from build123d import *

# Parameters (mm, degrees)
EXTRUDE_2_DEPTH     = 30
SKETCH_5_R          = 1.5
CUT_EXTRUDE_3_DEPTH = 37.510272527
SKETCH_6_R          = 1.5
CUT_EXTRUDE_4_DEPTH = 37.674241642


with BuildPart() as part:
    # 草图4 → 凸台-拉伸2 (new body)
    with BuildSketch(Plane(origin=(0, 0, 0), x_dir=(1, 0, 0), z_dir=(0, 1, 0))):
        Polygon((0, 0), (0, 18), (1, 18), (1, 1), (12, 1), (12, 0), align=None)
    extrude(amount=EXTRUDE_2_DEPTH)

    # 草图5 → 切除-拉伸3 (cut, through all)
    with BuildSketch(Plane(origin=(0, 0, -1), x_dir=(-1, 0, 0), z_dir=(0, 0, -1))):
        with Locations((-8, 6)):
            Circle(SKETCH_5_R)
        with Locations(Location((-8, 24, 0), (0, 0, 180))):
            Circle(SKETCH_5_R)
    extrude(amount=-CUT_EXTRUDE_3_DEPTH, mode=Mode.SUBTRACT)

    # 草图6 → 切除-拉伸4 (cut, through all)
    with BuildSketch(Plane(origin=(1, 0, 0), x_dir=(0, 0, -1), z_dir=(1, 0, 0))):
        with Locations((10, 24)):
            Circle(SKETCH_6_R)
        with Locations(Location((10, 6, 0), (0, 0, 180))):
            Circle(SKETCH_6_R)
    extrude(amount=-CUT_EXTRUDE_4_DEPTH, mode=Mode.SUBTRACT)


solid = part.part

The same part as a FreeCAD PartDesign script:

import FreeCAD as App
import Part
import Sketcher
from FreeCAD import Vector
Q = App.Units.Quantity


def add_polygon(sketch, points):
    """Adds a closed chain of lines whose ends are joined by coincident constraints."""
    first, n = sketch.GeometryCount, len(points)
    for a, b in zip(points, points[1:] + points[:1]):
        sketch.addGeometry(Part.LineSegment(App.Vector(*a, 0), App.Vector(*b, 0)), False)
    for i in range(n):
        sketch.addConstraint(Sketcher.Constraint("Coincident", first + i, 2, first + (i + 1) % n, 1))

doc = App.newDocument("Part")
body = doc.addObject("PartDesign::Body", "Body")

# Sketch on XZ plane
sketch1 = doc.addObject("Sketcher::SketchObject", "Sketch")
body.addObject(sketch1)
sketch1.AttachmentSupport = (doc.XZ_Plane, [""])
sketch1.MapMode = "FlatFace"
add_polygon(sketch1, [(0, -18), (0, 0), (12, 0), (12, -1), (1, -1), (1, -18)])  # lines 0-5
sketch1.addConstraint([
    Sketcher.Constraint("Vertical", 0),
    Sketcher.Constraint("Horizontal", 1),
    Sketcher.Constraint("Vertical", 2),
    Sketcher.Constraint("Horizontal", 3),
    Sketcher.Constraint("Vertical", 4),
    Sketcher.Constraint("Horizontal", 5),
    Sketcher.Constraint("Coincident", 0, 2, -1, 1),
    Sketcher.Constraint("Equal", 5, 2),
    Sketcher.Constraint("DistanceX", 1, 1, 1, 2, Q("12 mm")),
    Sketcher.Constraint("DistanceX", 3, 2, 3, 1, Q("11 mm")),
    Sketcher.Constraint("DistanceY", 0, 1, 0, 2, Q("18 mm")),
])
pad1 = doc.addObject("PartDesign::Pad", "Pad")
body.addObject(pad1)
pad1.Profile = sketch1
pad1.Length = 30
pad1.Reversed = True

# Sketch on XY plane
sketch2 = doc.addObject("Sketcher::SketchObject", "Sketch001")
body.addObject(sketch2)
sketch2.AttachmentSupport = (doc.XY_Plane, [""])
sketch2.MapMode = "FlatFace"
sketch2.AttachmentOffset = App.Placement(Vector(0, 0, -1), App.Rotation())
sketch2.addGeometry([
    Part.Circle(Vector(8, 6, 0), Vector(0, 0, 1), 1.5),
    Part.Circle(Vector(8, 24, 0), Vector(0, 0, 1), 1.5),
], False)
sketch2.addConstraint([
    Sketcher.Constraint("Equal", 0, 1),
    Sketcher.Constraint("Vertical", 0, 3, 1, 3),
    Sketcher.Constraint("Diameter", 0, Q("3 mm")),
    Sketcher.Constraint("DistanceX", -1, 1, 0, 3, Q("8 mm")),
    Sketcher.Constraint("DistanceY", -1, 1, 0, 3, Q("6 mm")),
    Sketcher.Constraint("DistanceY", -1, 1, 1, 3, Q("24 mm")),
])
pocket1 = doc.addObject("PartDesign::Pocket", "Pocket")
body.addObject(pocket1)
pocket1.Profile = sketch2
pocket1.Type = "ThroughAll"
pocket1.Reversed = True

# Sketch on YZ plane
sketch3 = doc.addObject("Sketcher::SketchObject", "Sketch002")
body.addObject(sketch3)
sketch3.AttachmentSupport = (doc.YZ_Plane, [""])
sketch3.MapMode = "FlatFace"
sketch3.AttachmentOffset = App.Placement(Vector(0, 0, 1), App.Rotation())
sketch3.addGeometry([
    Part.Circle(Vector(24, -10, 0), Vector(0, 0, 1), 1.5),
    Part.Circle(Vector(6, -10, 0), Vector(0, 0, 1), 1.5),
], False)
sketch3.addConstraint([
    Sketcher.Constraint("Equal", 0, 1),
    Sketcher.Constraint("Horizontal", 0, 3, 1, 3),
    Sketcher.Constraint("Diameter", 0, Q("3 mm")),
    Sketcher.Constraint("DistanceX", -1, 1, 0, 3, Q("24 mm")),
    Sketcher.Constraint("DistanceY", 0, 3, -1, 1, Q("10 mm")),
    Sketcher.Constraint("DistanceX", -1, 1, 1, 3, Q("6 mm")),
])
pocket2 = doc.addObject("PartDesign::Pocket", "Pocket001")
body.addObject(pocket2)
pocket2.Profile = sketch3
pocket2.Type = "ThroughAll"

doc.recompute()
